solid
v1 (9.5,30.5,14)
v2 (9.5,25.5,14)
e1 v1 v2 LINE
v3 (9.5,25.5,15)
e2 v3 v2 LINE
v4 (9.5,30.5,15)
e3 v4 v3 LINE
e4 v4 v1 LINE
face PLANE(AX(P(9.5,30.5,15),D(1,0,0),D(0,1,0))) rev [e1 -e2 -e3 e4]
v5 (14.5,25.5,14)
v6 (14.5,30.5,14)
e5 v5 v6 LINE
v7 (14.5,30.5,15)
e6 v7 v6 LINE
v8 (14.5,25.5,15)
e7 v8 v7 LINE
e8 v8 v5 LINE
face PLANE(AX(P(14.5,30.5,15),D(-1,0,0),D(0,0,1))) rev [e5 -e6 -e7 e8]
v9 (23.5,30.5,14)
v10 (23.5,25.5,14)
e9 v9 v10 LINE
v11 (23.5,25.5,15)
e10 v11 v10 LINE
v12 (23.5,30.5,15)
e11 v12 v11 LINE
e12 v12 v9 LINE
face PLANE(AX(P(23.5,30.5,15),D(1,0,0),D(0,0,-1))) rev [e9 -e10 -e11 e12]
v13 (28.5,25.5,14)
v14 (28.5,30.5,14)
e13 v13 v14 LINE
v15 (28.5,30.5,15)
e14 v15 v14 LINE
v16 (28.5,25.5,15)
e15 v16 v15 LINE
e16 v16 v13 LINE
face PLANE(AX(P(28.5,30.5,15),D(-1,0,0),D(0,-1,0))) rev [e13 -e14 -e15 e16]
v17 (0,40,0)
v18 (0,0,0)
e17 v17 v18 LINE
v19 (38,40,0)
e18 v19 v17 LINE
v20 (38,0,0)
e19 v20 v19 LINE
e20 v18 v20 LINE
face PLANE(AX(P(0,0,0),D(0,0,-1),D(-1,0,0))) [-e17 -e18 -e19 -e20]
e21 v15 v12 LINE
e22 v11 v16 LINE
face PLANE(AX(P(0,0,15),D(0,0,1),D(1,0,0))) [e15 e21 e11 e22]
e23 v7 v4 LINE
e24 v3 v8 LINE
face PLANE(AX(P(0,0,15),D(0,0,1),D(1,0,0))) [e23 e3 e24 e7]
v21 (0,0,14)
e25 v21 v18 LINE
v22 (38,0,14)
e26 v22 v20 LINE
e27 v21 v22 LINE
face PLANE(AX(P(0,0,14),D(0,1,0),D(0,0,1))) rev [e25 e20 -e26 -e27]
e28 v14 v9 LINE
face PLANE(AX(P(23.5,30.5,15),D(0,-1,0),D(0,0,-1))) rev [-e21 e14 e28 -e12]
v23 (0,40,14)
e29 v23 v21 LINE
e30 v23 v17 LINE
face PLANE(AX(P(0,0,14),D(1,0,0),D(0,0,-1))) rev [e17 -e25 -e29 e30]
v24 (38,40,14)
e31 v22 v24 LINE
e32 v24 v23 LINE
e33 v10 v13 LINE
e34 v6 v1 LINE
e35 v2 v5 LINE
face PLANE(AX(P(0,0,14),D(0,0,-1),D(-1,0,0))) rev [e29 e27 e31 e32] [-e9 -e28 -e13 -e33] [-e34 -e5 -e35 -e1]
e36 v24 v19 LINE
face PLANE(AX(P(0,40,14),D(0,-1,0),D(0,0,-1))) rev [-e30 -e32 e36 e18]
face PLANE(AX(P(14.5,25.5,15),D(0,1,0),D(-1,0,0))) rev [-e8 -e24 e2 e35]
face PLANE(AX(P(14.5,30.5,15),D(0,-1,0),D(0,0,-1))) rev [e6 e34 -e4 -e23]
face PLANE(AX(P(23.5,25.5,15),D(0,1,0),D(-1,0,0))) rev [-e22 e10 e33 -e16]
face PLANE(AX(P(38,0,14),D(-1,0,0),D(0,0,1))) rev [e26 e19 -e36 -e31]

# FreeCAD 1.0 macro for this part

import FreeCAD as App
import Part
import Sketcher
from FreeCAD import Vector
Q = App.Units.Quantity


def add_polygon(sketch, points):
    """Adds a closed chain of lines whose ends are joined by coincident constraints."""
    first, n = sketch.GeometryCount, len(points)
    for a, b in zip(points, points[1:] + points[:1]):
        sketch.addGeometry(Part.LineSegment(App.Vector(*a, 0), App.Vector(*b, 0)), False)
    for i in range(n):
        sketch.addConstraint(Sketcher.Constraint("Coincident", first + i, 2, first + (i + 1) % n, 1))

doc = App.newDocument("Part")
params = doc.addObject("Spreadsheet::Sheet", "Params")
for row, (alias, value) in enumerate([
    ("sketch1_width", "38 mm"),
    ("sketch1_height", "40 mm"),
    ("pad1_length", "14 mm"),
    ("sketch2_width", "5 mm"),
    ("pad2_length", "1 mm"),
], start=1):
    params.set(f"A{row}", alias)
    params.set(f"B{row}", "=" + value)
    params.setAlias(f"B{row}", alias)

body = doc.addObject("PartDesign::Body", "Body")

# Sketch on XY plane
sketch1 = body.newObject("Sketcher::SketchObject", "Sketch")
sketch1.AttachmentSupport = (doc.getObject("XY_Plane"), [""])
sketch1.MapMode = "FlatFace"
add_polygon(sketch1, [(0, 40), (0, 0), (38, 0), (38, 40)])  # lines 0-3
sketch1.addConstraint([
    Sketcher.Constraint("Vertical", 0),
    Sketcher.Constraint("Horizontal", 1),
    Sketcher.Constraint("Vertical", 2),
    Sketcher.Constraint("Horizontal", 3),
    Sketcher.Constraint("Coincident", 0, 2, -1, 1),
    Sketcher.Constraint("DistanceX", 1, 1, 1, 2, Q("38 mm")),
    Sketcher.Constraint("DistanceY", 0, 2, 0, 1, Q("40 mm")),
])
sketch1.setExpression("Constraints[9]", "Params.sketch1_width")
sketch1.setExpression("Constraints[10]", "Params.sketch1_height")
pad1 = body.newObject("PartDesign::Pad", "Pad")
pad1.Profile = sketch1
pad1.setExpression("Length", "Params.pad1_length")

# Sketch on XY plane
sketch2 = body.newObject("Sketcher::SketchObject", "Sketch001")
sketch2.AttachmentSupport = (doc.getObject("XY_Plane"), [""])
sketch2.MapMode = "FlatFace"
sketch2.AttachmentOffset = App.Placement(Vector(0, 0, 14), App.Rotation())
add_polygon(sketch2, [(24, 30), (24, 26), (28, 26), (28, 30)])  # lines 0-3
add_polygon(sketch2, [(10, 30), (10, 26), (14, 26), (14, 30)])  # lines 4-7
sketch2.addConstraint([
    Sketcher.Constraint("Vertical", 0),
    Sketcher.Constraint("Horizontal", 1),
    Sketcher.Constraint("Vertical", 2),
    Sketcher.Constraint("Horizontal", 3),
    Sketcher.Constraint("Vertical", 4),
    Sketcher.Constraint("Horizontal", 5),
    Sketcher.Constraint("Vertical", 6),
    Sketcher.Constraint("Horizontal", 7),
    Sketcher.Constraint("Horizontal", 1, 2, 4, 2),
    Sketcher.Constraint("Horizontal", 3, 2, 6, 2),
    Sketcher.Constraint("Equal", 3, 5),
    Sketcher.Constraint("Equal", 7, 0),
    Sketcher.Constraint("DistanceX", 1, 1, 1, 2, Q("5 mm")),
    Sketcher.Constraint("DistanceX", 4, 2, 0, 2, Q("14 mm")),
    Sketcher.Constraint("DistanceX", -1, 1, 0, 2, Q("23.5 mm")),
    Sketcher.Constraint("DistanceY", -1, 1, 0, 2, Q("25.5 mm")),
])
sketch2.setExpression("Constraints[20]", "Params.sketch2_width")
pad2 = body.newObject("PartDesign::Pad", "Pad001")
pad2.Profile = sketch2
pad2.setExpression("Length", "Params.pad2_length")

doc.recompute()
